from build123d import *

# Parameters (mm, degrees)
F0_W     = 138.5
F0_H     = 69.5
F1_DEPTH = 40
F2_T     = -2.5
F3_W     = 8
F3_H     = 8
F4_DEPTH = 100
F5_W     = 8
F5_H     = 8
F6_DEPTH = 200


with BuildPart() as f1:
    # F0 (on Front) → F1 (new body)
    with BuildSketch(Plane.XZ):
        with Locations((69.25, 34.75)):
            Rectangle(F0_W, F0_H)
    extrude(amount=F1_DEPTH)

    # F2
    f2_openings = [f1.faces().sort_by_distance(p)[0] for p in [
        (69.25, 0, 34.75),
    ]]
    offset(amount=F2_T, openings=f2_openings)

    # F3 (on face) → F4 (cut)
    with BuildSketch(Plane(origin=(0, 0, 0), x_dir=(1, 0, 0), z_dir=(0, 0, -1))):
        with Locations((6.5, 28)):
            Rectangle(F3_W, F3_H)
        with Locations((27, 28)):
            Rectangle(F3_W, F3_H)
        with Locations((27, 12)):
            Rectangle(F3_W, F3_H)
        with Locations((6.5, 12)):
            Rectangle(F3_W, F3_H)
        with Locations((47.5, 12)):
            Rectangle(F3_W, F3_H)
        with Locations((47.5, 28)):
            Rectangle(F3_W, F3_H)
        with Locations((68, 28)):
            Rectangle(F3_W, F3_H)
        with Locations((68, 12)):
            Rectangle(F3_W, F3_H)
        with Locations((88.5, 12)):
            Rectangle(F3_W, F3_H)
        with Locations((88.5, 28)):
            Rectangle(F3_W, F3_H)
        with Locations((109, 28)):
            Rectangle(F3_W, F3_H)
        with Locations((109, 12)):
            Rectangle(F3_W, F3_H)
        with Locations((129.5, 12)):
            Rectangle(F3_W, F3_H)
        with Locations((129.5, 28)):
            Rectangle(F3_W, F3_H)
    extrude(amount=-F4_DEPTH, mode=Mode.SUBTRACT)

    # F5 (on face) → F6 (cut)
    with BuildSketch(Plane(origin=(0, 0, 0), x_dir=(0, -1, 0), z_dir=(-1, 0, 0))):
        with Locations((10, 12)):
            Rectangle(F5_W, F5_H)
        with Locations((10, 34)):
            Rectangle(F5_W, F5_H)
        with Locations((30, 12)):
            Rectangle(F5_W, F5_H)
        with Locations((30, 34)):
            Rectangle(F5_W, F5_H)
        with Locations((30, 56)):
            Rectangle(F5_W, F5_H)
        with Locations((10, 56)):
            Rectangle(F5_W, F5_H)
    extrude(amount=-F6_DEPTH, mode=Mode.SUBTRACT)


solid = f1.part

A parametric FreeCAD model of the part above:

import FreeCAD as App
import Part
import Sketcher


def faces_at(feature, points):
    """Names of the faces that lie closest to the given points."""
    faces = feature.Shape.Faces
    near = lambda p: min(range(len(faces)), key=lambda i: faces[i].distToShape(Part.Vertex(*p))[0])
    return sorted({f"Face{near(p) + 1}" for p in points})

doc = App.newDocument("Part")
body = doc.addObject("PartDesign::Body", "Body")

# Sketch on XZ plane
sketch1 = body.newObject("Sketcher::SketchObject", "Sketch")
sketch1.AttachmentSupport = (doc.getObject("XZ_Plane"), [""])
sketch1.MapMode = "FlatFace"
sketch1.addGeometry(Part.LineSegment(App.Vector(0, 70, 0), App.Vector(0, 0, 0)), False)
sketch1.addGeometry(Part.LineSegment(App.Vector(0, 0, 0), App.Vector(138, 0, 0)), False)
sketch1.addGeometry(Part.LineSegment(App.Vector(138, 0, 0), App.Vector(138, 70, 0)), False)
sketch1.addGeometry(Part.LineSegment(App.Vector(138, 70, 0), App.Vector(0, 70, 0)), False)
sketch1.addConstraint(Sketcher.Constraint("Coincident", 0, 2, 1, 1))
sketch1.addConstraint(Sketcher.Constraint("Coincident", 1, 2, 2, 1))
sketch1.addConstraint(Sketcher.Constraint("Coincident", 2, 2, 3, 1))
sketch1.addConstraint(Sketcher.Constraint("Coincident", 3, 2, 0, 1))
sketch1.addConstraint(Sketcher.Constraint("Vertical", 0))
sketch1.addConstraint(Sketcher.Constraint("Horizontal", 1))
sketch1.addConstraint(Sketcher.Constraint("Vertical", 2))
sketch1.addConstraint(Sketcher.Constraint("Horizontal", 3))
sketch1.addConstraint(Sketcher.Constraint("Coincident", 0, 2, -1, 1))
sketch1.addConstraint(Sketcher.Constraint("DistanceX", 1, 1, 1, 2, 138.5))
sketch1.addConstraint(Sketcher.Constraint("DistanceY", 0, 2, 0, 1, 69.5))
pad1 = body.newObject("PartDesign::Pad", "Pad")
pad1.Profile = sketch1
pad1.Length = 40
doc.recompute()

thickness = body.newObject("PartDesign::Thickness", "Thickness")
thickness.Base = (pad1, faces_at(pad1, [(69.25, 0, 34.75)]))
thickness.Value = 2.5
thickness.Reversed = True
thickness.Join = "Arc"

# Sketch on XY plane
sketch2 = body.newObject("Sketcher::SketchObject", "Sketch001")
sketch2.AttachmentSupport = (doc.getObject("XY_Plane"), [""])
sketch2.MapMode = "FlatFace"
sketch2.addGeometry(Part.LineSegment(App.Vector(2, -32, 0), App.Vector(2, -24, 0)), False)
sketch2.addGeometry(Part.LineSegment(App.Vector(2, -24, 0), App.Vector(10, -24, 0)), False)
sketch2.addGeometry(Part.LineSegment(App.Vector(10, -24, 0), App.Vector(10, -32, 0)), False)
sketch2.addGeometry(Part.LineSegment(App.Vector(10, -32, 0), App.Vector(2, -32, 0)), False)
sketch2.addGeometry(Part.LineSegment(App.Vector(23, -32, 0), App.Vector(23, -24, 0)), False)
sketch2.addGeometry(Part.LineSegment(App.Vector(23, -24, 0), App.Vector(31, -24, 0)), False)
sketch2.addGeometry(Part.LineSegment(App.Vector(31, -24, 0), App.Vector(31, -32, 0)), False)
sketch2.addGeometry(Part.LineSegment(App.Vector(31, -32, 0), App.Vector(23, -32, 0)), False)
sketch2.addGeometry(Part.LineSegment(App.Vector(23, -16, 0), App.Vector(23, -8, 0)), False)
sketch2.addGeometry(Part.LineSegment(App.Vector(23, -8, 0), App.Vector(31, -8, 0)), False)
sketch2.addGeometry(Part.LineSegment(App.Vector(31, -8, 0), App.Vector(31, -16, 0)), False)
sketch2.addGeometry(Part.LineSegment(App.Vector(31, -16, 0), App.Vector(23, -16, 0)), False)
sketch2.addGeometry(Part.LineSegment(App.Vector(2, -16, 0), App.Vector(2, -8, 0)), False)
sketch2.addGeometry(Part.LineSegment(App.Vector(2, -8, 0), App.Vector(10, -8, 0)), False)
sketch2.addGeometry(Part.LineSegment(App.Vector(10, -8, 0), App.Vector(10, -16, 0)), False)
sketch2.addGeometry(Part.LineSegment(App.Vector(10, -16, 0), App.Vector(2, -16, 0)), False)
sketch2.addGeometry(Part.LineSegment(App.Vector(44, -16, 0), App.Vector(44, -8, 0)), False)
sketch2.addGeometry(Part.LineSegment(App.Vector(44, -8, 0), App.Vector(52, -8, 0)), False)
sketch2.addGeometry(Part.LineSegment(App.Vector(52, -8, 0), App.Vector(52, -16, 0)), False)
sketch2.addGeometry(Part.LineSegment(App.Vector(52, -16, 0), App.Vector(44, -16, 0)), False)
sketch2.addGeometry(Part.LineSegment(App.Vector(44, -32, 0), App.Vector(44, -24, 0)), False)
sketch2.addGeometry(Part.LineSegment(App.Vector(44, -24, 0), App.Vector(52, -24, 0)), False)
sketch2.addGeometry(Part.LineSegment(App.Vector(52, -24, 0), App.Vector(52, -32, 0)), False)
sketch2.addGeometry(Part.LineSegment(App.Vector(52, -32, 0), App.Vector(44, -32, 0)), False)
sketch2.addGeometry(Part.LineSegment(App.Vector(64, -32, 0), App.Vector(64, -24, 0)), False)
sketch2.addGeometry(Part.LineSegment(App.Vector(64, -24, 0), App.Vector(72, -24, 0)), False)
sketch2.addGeometry(Part.LineSegment(App.Vector(72, -24, 0), App.Vector(72, -32, 0)), False)
sketch2.addGeometry(Part.LineSegment(App.Vector(72, -32, 0), App.Vector(64, -32, 0)), False)
sketch2.addGeometry(Part.LineSegment(App.Vector(64, -16, 0), App.Vector(64, -8, 0)), False)
sketch2.addGeometry(Part.LineSegment(App.Vector(64, -8, 0), App.Vector(72, -8, 0)), False)
sketch2.addGeometry(Part.LineSegment(App.Vector(72, -8, 0), App.Vector(72, -16, 0)), False)
sketch2.addGeometry(Part.LineSegment(App.Vector(72, -16, 0), App.Vector(64, -16, 0)), False)
sketch2.addGeometry(Part.LineSegment(App.Vector(84, -16, 0), App.Vector(84, -8, 0)), False)
sketch2.addGeometry(Part.LineSegment(App.Vector(84, -8, 0), App.Vector(92, -8, 0)), False)
sketch2.addGeometry(Part.LineSegment(App.Vector(92, -8, 0), App.Vector(92, -16, 0)), False)
sketch2.addGeometry(Part.LineSegment(App.Vector(92, -16, 0), App.Vector(84, -16, 0)), False)
sketch2.addGeometry(Part.LineSegment(App.Vector(84, -32, 0), App.Vector(84, -24, 0)), False)
sketch2.addGeometry(Part.LineSegment(App.Vector(84, -24, 0), App.Vector(92, -24, 0)), False)
sketch2.addGeometry(Part.LineSegment(App.Vector(92, -24, 0), App.Vector(92, -32, 0)), False)
sketch2.addGeometry(Part.LineSegment(App.Vector(92, -32, 0), App.Vector(84, -32, 0)), False)
sketch2.addGeometry(Part.LineSegment(App.Vector(105, -32, 0), App.Vector(105, -24, 0)), False)
sketch2.addGeometry(Part.LineSegment(App.Vector(105, -24, 0), App.Vector(113, -24, 0)), False)
sketch2.addGeometry(Part.LineSegment(App.Vector(113, -24, 0), App.Vector(113, -32, 0)), False)
sketch2.addGeometry(Part.LineSegment(App.Vector(113, -32, 0), App.Vector(105, -32, 0)), False)
sketch2.addGeometry(Part.LineSegment(App.Vector(105, -16, 0), App.Vector(105, -8, 0)), False)
sketch2.addGeometry(Part.LineSegment(App.Vector(105, -8, 0), App.Vector(113, -8, 0)), False)
sketch2.addGeometry(Part.LineSegment(App.Vector(113, -8, 0), App.Vector(113, -16, 0)), False)
sketch2.addGeometry(Part.LineSegment(App.Vector(113, -16, 0), App.Vector(105, -16, 0)), False)
sketch2.addGeometry(Part.LineSegment(App.Vector(126, -16, 0), App.Vector(126, -8, 0)), False)
sketch2.addGeometry(Part.LineSegment(App.Vector(126, -8, 0), App.Vector(134, -8, 0)), False)
sketch2.addGeometry(Part.LineSegment(App.Vector(134, -8, 0), App.Vector(134, -16, 0)), False)
sketch2.addGeometry(Part.LineSegment(App.Vector(134, -16, 0), App.Vector(126, -16, 0)), False)
sketch2.addGeometry(Part.LineSegment(App.Vector(126, -32, 0), App.Vector(126, -24, 0)), False)
sketch2.addGeometry(Part.LineSegment(App.Vector(126, -24, 0), App.Vector(134, -24, 0)), False)
sketch2.addGeometry(Part.LineSegment(App.Vector(134, -24, 0), App.Vector(134, -32, 0)), False)
sketch2.addGeometry(Part.LineSegment(App.Vector(134, -32, 0), App.Vector(126, -32, 0)), False)
sketch2.addConstraint(Sketcher.Constraint("Coincident", 0, 2, 1, 1))
sketch2.addConstraint(Sketcher.Constraint("Coincident", 1, 2, 2, 1))
sketch2.addConstraint(Sketcher.Constraint("Coincident", 2, 2, 3, 1))
sketch2.addConstraint(Sketcher.Constraint("Coincident", 3, 2, 0, 1))
sketch2.addConstraint(Sketcher.Constraint("Coincident", 4, 2, 5, 1))
sketch2.addConstraint(Sketcher.Constraint("Coincident", 5, 2, 6, 1))
sketch2.addConstraint(Sketcher.Constraint("Coincident", 6, 2, 7, 1))
sketch2.addConstraint(Sketcher.Constraint("Coincident", 7, 2, 4, 1))
sketch2.addConstraint(Sketcher.Constraint("Coincident", 8, 2, 9, 1))
sketch2.addConstraint(Sketcher.Constraint("Coincident", 9, 2, 10, 1))
sketch2.addConstraint(Sketcher.Constraint("Coincident", 10, 2, 11, 1))
sketch2.addConstraint(Sketcher.Constraint("Coincident", 11, 2, 8, 1))
sketch2.addConstraint(Sketcher.Constraint("Coincident", 12, 2, 13, 1))
sketch2.addConstraint(Sketcher.Constraint("Coincident", 13, 2, 14, 1))
sketch2.addConstraint(Sketcher.Constraint("Coincident", 14, 2, 15, 1))
sketch2.addConstraint(Sketcher.Constraint("Coincident", 15, 2, 12, 1))
sketch2.addConstraint(Sketcher.Constraint("Coincident", 16, 2, 17, 1))
sketch2.addConstraint(Sketcher.Constraint("Coincident", 17, 2, 18, 1))
sketch2.addConstraint(Sketcher.Constraint("Coincident", 18, 2, 19, 1))
sketch2.addConstraint(Sketcher.Constraint("Coincident", 19, 2, 16, 1))
sketch2.addConstraint(Sketcher.Constraint("Coincident", 20, 2, 21, 1))
sketch2.addConstraint(Sketcher.Constraint("Coincident", 21, 2, 22, 1))
sketch2.addConstraint(Sketcher.Constraint("Coincident", 22, 2, 23, 1))
sketch2.addConstraint(Sketcher.Constraint("Coincident", 23, 2, 20, 1))
sketch2.addConstraint(Sketcher.Constraint("Coincident", 24, 2, 25, 1))
sketch2.addConstraint(Sketcher.Constraint("Coincident", 25, 2, 26, 1))
sketch2.addConstraint(Sketcher.Constraint("Coincident", 26, 2, 27, 1))
sketch2.addConstraint(Sketcher.Constraint("Coincident", 27, 2, 24, 1))
sketch2.addConstraint(Sketcher.Constraint("Coincident", 28, 2, 29, 1))
sketch2.addConstraint(Sketcher.Constraint("Coincident", 29, 2, 30, 1))
sketch2.addConstraint(Sketcher.Constraint("Coincident", 30, 2, 31, 1))
sketch2.addConstraint(Sketcher.Constraint("Coincident", 31, 2, 28, 1))
sketch2.addConstraint(Sketcher.Constraint("Coincident", 32, 2, 33, 1))
sketch2.addConstraint(Sketcher.Constraint("Coincident", 33, 2, 34, 1))
sketch2.addConstraint(Sketcher.Constraint("Coincident", 34, 2, 35, 1))
sketch2.addConstraint(Sketcher.Constraint("Coincident", 35, 2, 32, 1))
sketch2.addConstraint(Sketcher.Constraint("Coincident", 36, 2, 37, 1))
sketch2.addConstraint(Sketcher.Constraint("Coincident", 37, 2, 38, 1))
sketch2.addConstraint(Sketcher.Constraint("Coincident", 38, 2, 39, 1))
sketch2.addConstraint(Sketcher.Constraint("Coincident", 39, 2, 36, 1))
sketch2.addConstraint(Sketcher.Constraint("Coincident", 40, 2, 41, 1))
sketch2.addConstraint(Sketcher.Constraint("Coincident", 41, 2, 42, 1))
sketch2.addConstraint(Sketcher.Constraint("Coincident", 42, 2, 43, 1))
sketch2.addConstraint(Sketcher.Constraint("Coincident", 43, 2, 40, 1))
sketch2.addConstraint(Sketcher.Constraint("Coincident", 44, 2, 45, 1))
sketch2.addConstraint(Sketcher.Constraint("Coincident", 45, 2, 46, 1))
sketch2.addConstraint(Sketcher.Constraint("Coincident", 46, 2, 47, 1))
sketch2.addConstraint(Sketcher.Constraint("Coincident", 47, 2, 44, 1))
sketch2.addConstraint(Sketcher.Constraint("Coincident", 48, 2, 49, 1))
sketch2.addConstraint(Sketcher.Constraint("Coincident", 49, 2, 50, 1))
sketch2.addConstraint(Sketcher.Constraint("Coincident", 50, 2, 51, 1))
sketch2.addConstraint(Sketcher.Constraint("Coincident", 51, 2, 48, 1))
sketch2.addConstraint(Sketcher.Constraint("Coincident", 52, 2, 53, 1))
sketch2.addConstraint(Sketcher.Constraint("Coincident", 53, 2, 54, 1))
sketch2.addConstraint(Sketcher.Constraint("Coincident", 54, 2, 55, 1))
sketch2.addConstraint(Sketcher.Constraint("Coincident", 55, 2, 52, 1))
sketch2.addConstraint(Sketcher.Constraint("Vertical", 0))
sketch2.addConstraint(Sketcher.Constraint("Horizontal", 1))
sketch2.addConstraint(Sketcher.Constraint("Vertical", 2))
sketch2.addConstraint(Sketcher.Constraint("Horizontal", 3))
sketch2.addConstraint(Sketcher.Constraint("Vertical", 4))
sketch2.addConstraint(Sketcher.Constraint("Horizontal", 5))
sketch2.addConstraint(Sketcher.Constraint("Vertical", 6))
sketch2.addConstraint(Sketcher.Constraint("Horizontal", 7))
sketch2.addConstraint(Sketcher.Constraint("Vertical", 8))
sketch2.addConstraint(Sketcher.Constraint("Horizontal", 9))
sketch2.addConstraint(Sketcher.Constraint("Vertical", 10))
sketch2.addConstraint(Sketcher.Constraint("Horizontal", 11))
sketch2.addConstraint(Sketcher.Constraint("Vertical", 12))
sketch2.addConstraint(Sketcher.Constraint("Horizontal", 13))
sketch2.addConstraint(Sketcher.Constraint("Vertical", 14))
sketch2.addConstraint(Sketcher.Constraint("Horizontal", 15))
sketch2.addConstraint(Sketcher.Constraint("Vertical", 16))
sketch2.addConstraint(Sketcher.Constraint("Horizontal", 17))
sketch2.addConstraint(Sketcher.Constraint("Vertical", 18))
sketch2.addConstraint(Sketcher.Constraint("Horizontal", 19))
sketch2.addConstraint(Sketcher.Constraint("Vertical", 20))
sketch2.addConstraint(Sketcher.Constraint("Horizontal", 21))
sketch2.addConstraint(Sketcher.Constraint("Vertical", 22))
sketch2.addConstraint(Sketcher.Constraint("Horizontal", 23))
sketch2.addConstraint(Sketcher.Constraint("Vertical", 24))
sketch2.addConstraint(Sketcher.Constraint("Horizontal", 25))
sketch2.addConstraint(Sketcher.Constraint("Vertical", 26))
sketch2.addConstraint(Sketcher.Constraint("Horizontal", 27))
sketch2.addConstraint(Sketcher.Constraint("Vertical", 28))
sketch2.addConstraint(Sketcher.Constraint("Horizontal", 29))
sketch2.addConstraint(Sketcher.Constraint("Vertical", 30))
sketch2.addConstraint(Sketcher.Constraint("Horizontal", 31))
sketch2.addConstraint(Sketcher.Constraint("Vertical", 32))
sketch2.addConstraint(Sketcher.Constraint("Horizontal", 33))
sketch2.addConstraint(Sketcher.Constraint("Vertical", 34))
sketch2.addConstraint(Sketcher.Constraint("Horizontal", 35))
sketch2.addConstraint(Sketcher.Constraint("Vertical", 36))
sketch2.addConstraint(Sketcher.Constraint("Horizontal", 37))
sketch2.addConstraint(Sketcher.Constraint("Vertical", 38))
sketch2.addConstraint(Sketcher.Constraint("Horizontal", 39))
sketch2.addConstraint(Sketcher.Constraint("Vertical", 40))
sketch2.addConstraint(Sketcher.Constraint("Horizontal", 41))
sketch2.addConstraint(Sketcher.Constraint("Vertical", 42))
sketch2.addConstraint(Sketcher.Constraint("Horizontal", 43))
sketch2.addConstraint(Sketcher.Constraint("Vertical", 44))
sketch2.addConstraint(Sketcher.Constraint("Horizontal", 45))
sketch2.addConstraint(Sketcher.Constraint("Vertical", 46))
sketch2.addConstraint(Sketcher.Constraint("Horizontal", 47))
sketch2.addConstraint(Sketcher.Constraint("Vertical", 48))
sketch2.addConstraint(Sketcher.Constraint("Horizontal", 49))
sketch2.addConstraint(Sketcher.Constraint("Vertical", 50))
sketch2.addConstraint(Sketcher.Constraint("Horizontal", 51))
sketch2.addConstraint(Sketcher.Constraint("Vertical", 52))
sketch2.addConstraint(Sketcher.Constraint("Horizontal", 53))
sketch2.addConstraint(Sketcher.Constraint("Vertical", 54))
sketch2.addConstraint(Sketcher.Constraint("Horizontal", 55))
sketch2.addConstraint(Sketcher.Constraint("Horizontal", 1, 2, 4, 2))
sketch2.addConstraint(Sketcher.Constraint("Horizontal", 3, 2, 6, 2))
sketch2.addConstraint(Sketcher.Constraint("Horizontal", 9, 2, 12, 2))
sketch2.addConstraint(Sketcher.Constraint("Horizontal", 11, 2, 14, 2))
sketch2.addConstraint(Sketcher.Constraint("Horizontal", 13, 2, 16, 2))
sketch2.addConstraint(Sketcher.Constraint("Horizontal", 15, 2, 18, 2))
sketch2.addConstraint(Sketcher.Constraint("Horizontal", 5, 2, 20, 2))
sketch2.addConstraint(Sketcher.Constraint("Horizontal", 7, 2, 22, 2))
sketch2.addConstraint(Sketcher.Constraint("Horizontal", 21, 2, 24, 2))
sketch2.addConstraint(Sketcher.Constraint("Horizontal", 23, 2, 26, 2))
sketch2.addConstraint(Sketcher.Constraint("Horizontal", 17, 2, 28, 2))
sketch2.addConstraint(Sketcher.Constraint("Horizontal", 19, 2, 30, 2))
sketch2.addConstraint(Sketcher.Constraint("Horizontal", 29, 2, 32, 2))
sketch2.addConstraint(Sketcher.Constraint("Horizontal", 31, 2, 34, 2))
sketch2.addConstraint(Sketcher.Constraint("Horizontal", 25, 2, 36, 2))
sketch2.addConstraint(Sketcher.Constraint("Horizontal", 27, 2, 38, 2))
sketch2.addConstraint(Sketcher.Constraint("Horizontal", 37, 2, 40, 2))
sketch2.addConstraint(Sketcher.Constraint("Horizontal", 39, 2, 42, 2))
sketch2.addConstraint(Sketcher.Constraint("Horizontal", 33, 2, 44, 2))
sketch2.addConstraint(Sketcher.Constraint("Horizontal", 35, 2, 46, 2))
sketch2.addConstraint(Sketcher.Constraint("Horizontal", 45, 2, 48, 2))
sketch2.addConstraint(Sketcher.Constraint("Horizontal", 47, 2, 50, 2))
sketch2.addConstraint(Sketcher.Constraint("Horizontal", 41, 2, 52, 2))
sketch2.addConstraint(Sketcher.Constraint("Horizontal", 43, 2, 54, 2))
sketch2.addConstraint(Sketcher.Constraint("Vertical", 7, 2, 8, 2))
sketch2.addConstraint(Sketcher.Constraint("Vertical", 6, 2, 9, 2))
sketch2.addConstraint(Sketcher.Constraint("Vertical", 3, 2, 12, 2))
sketch2.addConstraint(Sketcher.Constraint("Vertical", 2, 2, 13, 2))
sketch2.addConstraint(Sketcher.Constraint("Vertical", 19, 2, 20, 2))
sketch2.addConstraint(Sketcher.Constraint("Vertical", 18, 2, 21, 2))
sketch2.addConstraint(Sketcher.Constraint("Vertical", 27, 2, 28, 2))
sketch2.addConstraint(Sketcher.Constraint("Vertical", 26, 2, 29, 2))
sketch2.addConstraint(Sketcher.Constraint("Vertical", 35, 2, 36, 2))
sketch2.addConstraint(Sketcher.Constraint("Vertical", 34, 2, 37, 2))
sketch2.addConstraint(Sketcher.Constraint("Vertical", 43, 2, 44, 2))
sketch2.addConstraint(Sketcher.Constraint("Vertical", 42, 2, 45, 2))
sketch2.addConstraint(Sketcher.Constraint("Vertical", 51, 2, 52, 2))
sketch2.addConstraint(Sketcher.Constraint("Vertical", 50, 2, 53, 2))
sketch2.addConstraint(Sketcher.Constraint("Equal", 3, 5))
sketch2.addConstraint(Sketcher.Constraint("Equal", 15, 17))
sketch2.addConstraint(Sketcher.Constraint("Equal", 23, 25))
sketch2.addConstraint(Sketcher.Constraint("Equal", 31, 33))
sketch2.addConstraint(Sketcher.Constraint("Equal", 39, 41))
sketch2.addConstraint(Sketcher.Constraint("Equal", 47, 49))
sketch2.addConstraint(Sketcher.Constraint("Equal", 55, 0))
sketch2.addConstraint(Sketcher.Constraint("Equal", 6, 8))
sketch2.addConstraint(Sketcher.Constraint("DistanceX", 1, 1, 1, 2, 8.0))
sketch2.addConstraint(Sketcher.Constraint("DistanceY", 0, 2, -1, 1, 24.0))
sketch2.addConstraint(Sketcher.Constraint("DistanceX", -1, 1, 4, 2, 23.0))
sketch2.addConstraint(Sketcher.Constraint("DistanceY", 8, 2, -1, 1, 8.0))
sketch2.addConstraint(Sketcher.Constraint("DistanceX", -1, 1, 24, 2, 64.0))
sketch2.addConstraint(Sketcher.Constraint("DistanceX", -1, 1, 40, 2, 105.0))
sketch2.addConstraint(Sketcher.Constraint("DistanceX", -1, 1, 0, 2, 2.5))
sketch2.addConstraint(Sketcher.Constraint("DistanceX", -1, 1, 16, 2, 43.5))
sketch2.addConstraint(Sketcher.Constraint("DistanceX", -1, 1, 32, 2, 84.5))
sketch2.addConstraint(Sketcher.Constraint("DistanceX", -1, 1, 48, 2, 125.5))
pocket1 = body.newObject("PartDesign::Pocket", "Pocket")
pocket1.Profile = sketch2
pocket1.Length = 100
pocket1.Reversed = True

# Sketch on YZ plane
sketch3 = body.newObject("Sketcher::SketchObject", "Sketch002")
sketch3.AttachmentSupport = (doc.getObject("YZ_Plane"), [""])
sketch3.MapMode = "FlatFace"
sketch3.addGeometry(Part.LineSegment(App.Vector(-6, 16, 0), App.Vector(-6, 8, 0)), False)
sketch3.addGeometry(Part.LineSegment(App.Vector(-6, 8, 0), App.Vector(-14, 8, 0)), False)
sketch3.addGeometry(Part.LineSegment(App.Vector(-14, 8, 0), App.Vector(-14, 16, 0)), False)
sketch3.addGeometry(Part.LineSegment(App.Vector(-14, 16, 0), App.Vector(-6, 16, 0)), False)
sketch3.addGeometry(Part.LineSegment(App.Vector(-6, 38, 0), App.Vector(-6, 30, 0)), False)
sketch3.addGeometry(Part.LineSegment(App.Vector(-6, 30, 0), App.Vector(-14, 30, 0)), False)
sketch3.addGeometry(Part.LineSegment(App.Vector(-14, 30, 0), App.Vector(-14, 38, 0)), False)
sketch3.addGeometry(Part.LineSegment(App.Vector(-14, 38, 0), App.Vector(-6, 38, 0)), False)
sketch3.addGeometry(Part.LineSegment(App.Vector(-26, 16, 0), App.Vector(-26, 8, 0)), False)
sketch3.addGeometry(Part.LineSegment(App.Vector(-26, 8, 0), App.Vector(-34, 8, 0)), False)
sketch3.addGeometry(Part.LineSegment(App.Vector(-34, 8, 0), App.Vector(-34, 16, 0)), False)
sketch3.addGeometry(Part.LineSegment(App.Vector(-34, 16, 0), App.Vector(-26, 16, 0)), False)
sketch3.addGeometry(Part.LineSegment(App.Vector(-26, 38, 0), App.Vector(-26, 30, 0)), False)
sketch3.addGeometry(Part.LineSegment(App.Vector(-26, 30, 0), App.Vector(-34, 30, 0)), False)
sketch3.addGeometry(Part.LineSegment(App.Vector(-34, 30, 0), App.Vector(-34, 38, 0)), False)
sketch3.addGeometry(Part.LineSegment(App.Vector(-34, 38, 0), App.Vector(-26, 38, 0)), False)
sketch3.addGeometry(Part.LineSegment(App.Vector(-26, 60, 0), App.Vector(-26, 52, 0)), False)
sketch3.addGeometry(Part.LineSegment(App.Vector(-26, 52, 0), App.Vector(-34, 52, 0)), False)
sketch3.addGeometry(Part.LineSegment(App.Vector(-34, 52, 0), App.Vector(-34, 60, 0)), False)
sketch3.addGeometry(Part.LineSegment(App.Vector(-34, 60, 0), App.Vector(-26, 60, 0)), False)
sketch3.addGeometry(Part.LineSegment(App.Vector(-6, 60, 0), App.Vector(-6, 52, 0)), False)
sketch3.addGeometry(Part.LineSegment(App.Vector(-6, 52, 0), App.Vector(-14, 52, 0)), False)
sketch3.addGeometry(Part.LineSegment(App.Vector(-14, 52, 0), App.Vector(-14, 60, 0)), False)
sketch3.addGeometry(Part.LineSegment(App.Vector(-14, 60, 0), App.Vector(-6, 60, 0)), False)
sketch3.addConstraint(Sketcher.Constraint("Coincident", 0, 2, 1, 1))
sketch3.addConstraint(Sketcher.Constraint("Coincident", 1, 2, 2, 1))
sketch3.addConstraint(Sketcher.Constraint("Coincident", 2, 2, 3, 1))
sketch3.addConstraint(Sketcher.Constraint("Coincident", 3, 2, 0, 1))
sketch3.addConstraint(Sketcher.Constraint("Coincident", 4, 2, 5, 1))
sketch3.addConstraint(Sketcher.Constraint("Coincident", 5, 2, 6, 1))
sketch3.addConstraint(Sketcher.Constraint("Coincident", 6, 2, 7, 1))
sketch3.addConstraint(Sketcher.Constraint("Coincident", 7, 2, 4, 1))
sketch3.addConstraint(Sketcher.Constraint("Coincident", 8, 2, 9, 1))
sketch3.addConstraint(Sketcher.Constraint("Coincident", 9, 2, 10, 1))
sketch3.addConstraint(Sketcher.Constraint("Coincident", 10, 2, 11, 1))
sketch3.addConstraint(Sketcher.Constraint("Coincident", 11, 2, 8, 1))
sketch3.addConstraint(Sketcher.Constraint("Coincident", 12, 2, 13, 1))
sketch3.addConstraint(Sketcher.Constraint("Coincident", 13, 2, 14, 1))
sketch3.addConstraint(Sketcher.Constraint("Coincident", 14, 2, 15, 1))
sketch3.addConstraint(Sketcher.Constraint("Coincident", 15, 2, 12, 1))
sketch3.addConstraint(Sketcher.Constraint("Coincident", 16, 2, 17, 1))
sketch3.addConstraint(Sketcher.Constraint("Coincident", 17, 2, 18, 1))
sketch3.addConstraint(Sketcher.Constraint("Coincident", 18, 2, 19, 1))
sketch3.addConstraint(Sketcher.Constraint("Coincident", 19, 2, 16, 1))
sketch3.addConstraint(Sketcher.Constraint("Coincident", 20, 2, 21, 1))
sketch3.addConstraint(Sketcher.Constraint("Coincident", 21, 2, 22, 1))
sketch3.addConstraint(Sketcher.Constraint("Coincident", 22, 2, 23, 1))
sketch3.addConstraint(Sketcher.Constraint("Coincident", 23, 2, 20, 1))
sketch3.addConstraint(Sketcher.Constraint("Vertical", 0))
sketch3.addConstraint(Sketcher.Constraint("Horizontal", 1))
sketch3.addConstraint(Sketcher.Constraint("Vertical", 2))
sketch3.addConstraint(Sketcher.Constraint("Horizontal", 3))
sketch3.addConstraint(Sketcher.Constraint("Vertical", 4))
sketch3.addConstraint(Sketcher.Constraint("Horizontal", 5))
sketch3.addConstraint(Sketcher.Constraint("Vertical", 6))
sketch3.addConstraint(Sketcher.Constraint("Horizontal", 7))
sketch3.addConstraint(Sketcher.Constraint("Vertical", 8))
sketch3.addConstraint(Sketcher.Constraint("Horizontal", 9))
sketch3.addConstraint(Sketcher.Constraint("Vertical", 10))
sketch3.addConstraint(Sketcher.Constraint("Horizontal", 11))
sketch3.addConstraint(Sketcher.Constraint("Vertical", 12))
sketch3.addConstraint(Sketcher.Constraint("Horizontal", 13))
sketch3.addConstraint(Sketcher.Constraint("Vertical", 14))
sketch3.addConstraint(Sketcher.Constraint("Horizontal", 15))
sketch3.addConstraint(Sketcher.Constraint("Vertical", 16))
sketch3.addConstraint(Sketcher.Constraint("Horizontal", 17))
sketch3.addConstraint(Sketcher.Constraint("Vertical", 18))
sketch3.addConstraint(Sketcher.Constraint("Horizontal", 19))
sketch3.addConstraint(Sketcher.Constraint("Vertical", 20))
sketch3.addConstraint(Sketcher.Constraint("Horizontal", 21))
sketch3.addConstraint(Sketcher.Constraint("Vertical", 22))
sketch3.addConstraint(Sketcher.Constraint("Horizontal", 23))
sketch3.addConstraint(Sketcher.Constraint("Horizontal", 1, 2, 8, 2))
sketch3.addConstraint(Sketcher.Constraint("Horizontal", 3, 2, 10, 2))
sketch3.addConstraint(Sketcher.Constraint("Horizontal", 5, 2, 12, 2))
sketch3.addConstraint(Sketcher.Constraint("Horizontal", 7, 2, 14, 2))
sketch3.addConstraint(Sketcher.Constraint("Horizontal", 17, 2, 20, 2))
sketch3.addConstraint(Sketcher.Constraint("Horizontal", 19, 2, 22, 2))
sketch3.addConstraint(Sketcher.Constraint("Vertical", 3, 2, 4, 2))
sketch3.addConstraint(Sketcher.Constraint("Vertical", 2, 2, 5, 2))
sketch3.addConstraint(Sketcher.Constraint("Vertical", 11, 2, 12, 2))
sketch3.addConstraint(Sketcher.Constraint("Vertical", 10, 2, 13, 2))
sketch3.addConstraint(Sketcher.Constraint("Vertical", 15, 2, 16, 2))
sketch3.addConstraint(Sketcher.Constraint("Vertical", 14, 2, 17, 2))
sketch3.addConstraint(Sketcher.Constraint("Vertical", 7, 2, 20, 2))
sketch3.addConstraint(Sketcher.Constraint("Vertical", 6, 2, 21, 2))
sketch3.addConstraint(Sketcher.Constraint("Equal", 7, 9))
sketch3.addConstraint(Sketcher.Constraint("Equal", 23, 0))
sketch3.addConstraint(Sketcher.Constraint("Equal", 2, 4))
sketch3.addConstraint(Sketcher.Constraint("Equal", 14, 16))
sketch3.addConstraint(Sketcher.Constraint("DistanceX", 1, 2, 1, 1, 8.0))
sketch3.addConstraint(Sketcher.Constraint("DistanceX", 0, 2, -1, 1, 6.0))
sketch3.addConstraint(Sketcher.Constraint("DistanceY", -1, 1, 0, 2, 8.0))
sketch3.addConstraint(Sketcher.Constraint("DistanceY", -1, 1, 4, 2, 30.0))
sketch3.addConstraint(Sketcher.Constraint("DistanceX", 8, 2, -1, 1, 26.0))
sketch3.addConstraint(Sketcher.Constraint("DistanceY", -1, 1, 16, 2, 52.0))
pocket2 = body.newObject("PartDesign::Pocket", "Pocket001")
pocket2.Profile = sketch3
pocket2.Length = 200
pocket2.Reversed = True

doc.recompute()
